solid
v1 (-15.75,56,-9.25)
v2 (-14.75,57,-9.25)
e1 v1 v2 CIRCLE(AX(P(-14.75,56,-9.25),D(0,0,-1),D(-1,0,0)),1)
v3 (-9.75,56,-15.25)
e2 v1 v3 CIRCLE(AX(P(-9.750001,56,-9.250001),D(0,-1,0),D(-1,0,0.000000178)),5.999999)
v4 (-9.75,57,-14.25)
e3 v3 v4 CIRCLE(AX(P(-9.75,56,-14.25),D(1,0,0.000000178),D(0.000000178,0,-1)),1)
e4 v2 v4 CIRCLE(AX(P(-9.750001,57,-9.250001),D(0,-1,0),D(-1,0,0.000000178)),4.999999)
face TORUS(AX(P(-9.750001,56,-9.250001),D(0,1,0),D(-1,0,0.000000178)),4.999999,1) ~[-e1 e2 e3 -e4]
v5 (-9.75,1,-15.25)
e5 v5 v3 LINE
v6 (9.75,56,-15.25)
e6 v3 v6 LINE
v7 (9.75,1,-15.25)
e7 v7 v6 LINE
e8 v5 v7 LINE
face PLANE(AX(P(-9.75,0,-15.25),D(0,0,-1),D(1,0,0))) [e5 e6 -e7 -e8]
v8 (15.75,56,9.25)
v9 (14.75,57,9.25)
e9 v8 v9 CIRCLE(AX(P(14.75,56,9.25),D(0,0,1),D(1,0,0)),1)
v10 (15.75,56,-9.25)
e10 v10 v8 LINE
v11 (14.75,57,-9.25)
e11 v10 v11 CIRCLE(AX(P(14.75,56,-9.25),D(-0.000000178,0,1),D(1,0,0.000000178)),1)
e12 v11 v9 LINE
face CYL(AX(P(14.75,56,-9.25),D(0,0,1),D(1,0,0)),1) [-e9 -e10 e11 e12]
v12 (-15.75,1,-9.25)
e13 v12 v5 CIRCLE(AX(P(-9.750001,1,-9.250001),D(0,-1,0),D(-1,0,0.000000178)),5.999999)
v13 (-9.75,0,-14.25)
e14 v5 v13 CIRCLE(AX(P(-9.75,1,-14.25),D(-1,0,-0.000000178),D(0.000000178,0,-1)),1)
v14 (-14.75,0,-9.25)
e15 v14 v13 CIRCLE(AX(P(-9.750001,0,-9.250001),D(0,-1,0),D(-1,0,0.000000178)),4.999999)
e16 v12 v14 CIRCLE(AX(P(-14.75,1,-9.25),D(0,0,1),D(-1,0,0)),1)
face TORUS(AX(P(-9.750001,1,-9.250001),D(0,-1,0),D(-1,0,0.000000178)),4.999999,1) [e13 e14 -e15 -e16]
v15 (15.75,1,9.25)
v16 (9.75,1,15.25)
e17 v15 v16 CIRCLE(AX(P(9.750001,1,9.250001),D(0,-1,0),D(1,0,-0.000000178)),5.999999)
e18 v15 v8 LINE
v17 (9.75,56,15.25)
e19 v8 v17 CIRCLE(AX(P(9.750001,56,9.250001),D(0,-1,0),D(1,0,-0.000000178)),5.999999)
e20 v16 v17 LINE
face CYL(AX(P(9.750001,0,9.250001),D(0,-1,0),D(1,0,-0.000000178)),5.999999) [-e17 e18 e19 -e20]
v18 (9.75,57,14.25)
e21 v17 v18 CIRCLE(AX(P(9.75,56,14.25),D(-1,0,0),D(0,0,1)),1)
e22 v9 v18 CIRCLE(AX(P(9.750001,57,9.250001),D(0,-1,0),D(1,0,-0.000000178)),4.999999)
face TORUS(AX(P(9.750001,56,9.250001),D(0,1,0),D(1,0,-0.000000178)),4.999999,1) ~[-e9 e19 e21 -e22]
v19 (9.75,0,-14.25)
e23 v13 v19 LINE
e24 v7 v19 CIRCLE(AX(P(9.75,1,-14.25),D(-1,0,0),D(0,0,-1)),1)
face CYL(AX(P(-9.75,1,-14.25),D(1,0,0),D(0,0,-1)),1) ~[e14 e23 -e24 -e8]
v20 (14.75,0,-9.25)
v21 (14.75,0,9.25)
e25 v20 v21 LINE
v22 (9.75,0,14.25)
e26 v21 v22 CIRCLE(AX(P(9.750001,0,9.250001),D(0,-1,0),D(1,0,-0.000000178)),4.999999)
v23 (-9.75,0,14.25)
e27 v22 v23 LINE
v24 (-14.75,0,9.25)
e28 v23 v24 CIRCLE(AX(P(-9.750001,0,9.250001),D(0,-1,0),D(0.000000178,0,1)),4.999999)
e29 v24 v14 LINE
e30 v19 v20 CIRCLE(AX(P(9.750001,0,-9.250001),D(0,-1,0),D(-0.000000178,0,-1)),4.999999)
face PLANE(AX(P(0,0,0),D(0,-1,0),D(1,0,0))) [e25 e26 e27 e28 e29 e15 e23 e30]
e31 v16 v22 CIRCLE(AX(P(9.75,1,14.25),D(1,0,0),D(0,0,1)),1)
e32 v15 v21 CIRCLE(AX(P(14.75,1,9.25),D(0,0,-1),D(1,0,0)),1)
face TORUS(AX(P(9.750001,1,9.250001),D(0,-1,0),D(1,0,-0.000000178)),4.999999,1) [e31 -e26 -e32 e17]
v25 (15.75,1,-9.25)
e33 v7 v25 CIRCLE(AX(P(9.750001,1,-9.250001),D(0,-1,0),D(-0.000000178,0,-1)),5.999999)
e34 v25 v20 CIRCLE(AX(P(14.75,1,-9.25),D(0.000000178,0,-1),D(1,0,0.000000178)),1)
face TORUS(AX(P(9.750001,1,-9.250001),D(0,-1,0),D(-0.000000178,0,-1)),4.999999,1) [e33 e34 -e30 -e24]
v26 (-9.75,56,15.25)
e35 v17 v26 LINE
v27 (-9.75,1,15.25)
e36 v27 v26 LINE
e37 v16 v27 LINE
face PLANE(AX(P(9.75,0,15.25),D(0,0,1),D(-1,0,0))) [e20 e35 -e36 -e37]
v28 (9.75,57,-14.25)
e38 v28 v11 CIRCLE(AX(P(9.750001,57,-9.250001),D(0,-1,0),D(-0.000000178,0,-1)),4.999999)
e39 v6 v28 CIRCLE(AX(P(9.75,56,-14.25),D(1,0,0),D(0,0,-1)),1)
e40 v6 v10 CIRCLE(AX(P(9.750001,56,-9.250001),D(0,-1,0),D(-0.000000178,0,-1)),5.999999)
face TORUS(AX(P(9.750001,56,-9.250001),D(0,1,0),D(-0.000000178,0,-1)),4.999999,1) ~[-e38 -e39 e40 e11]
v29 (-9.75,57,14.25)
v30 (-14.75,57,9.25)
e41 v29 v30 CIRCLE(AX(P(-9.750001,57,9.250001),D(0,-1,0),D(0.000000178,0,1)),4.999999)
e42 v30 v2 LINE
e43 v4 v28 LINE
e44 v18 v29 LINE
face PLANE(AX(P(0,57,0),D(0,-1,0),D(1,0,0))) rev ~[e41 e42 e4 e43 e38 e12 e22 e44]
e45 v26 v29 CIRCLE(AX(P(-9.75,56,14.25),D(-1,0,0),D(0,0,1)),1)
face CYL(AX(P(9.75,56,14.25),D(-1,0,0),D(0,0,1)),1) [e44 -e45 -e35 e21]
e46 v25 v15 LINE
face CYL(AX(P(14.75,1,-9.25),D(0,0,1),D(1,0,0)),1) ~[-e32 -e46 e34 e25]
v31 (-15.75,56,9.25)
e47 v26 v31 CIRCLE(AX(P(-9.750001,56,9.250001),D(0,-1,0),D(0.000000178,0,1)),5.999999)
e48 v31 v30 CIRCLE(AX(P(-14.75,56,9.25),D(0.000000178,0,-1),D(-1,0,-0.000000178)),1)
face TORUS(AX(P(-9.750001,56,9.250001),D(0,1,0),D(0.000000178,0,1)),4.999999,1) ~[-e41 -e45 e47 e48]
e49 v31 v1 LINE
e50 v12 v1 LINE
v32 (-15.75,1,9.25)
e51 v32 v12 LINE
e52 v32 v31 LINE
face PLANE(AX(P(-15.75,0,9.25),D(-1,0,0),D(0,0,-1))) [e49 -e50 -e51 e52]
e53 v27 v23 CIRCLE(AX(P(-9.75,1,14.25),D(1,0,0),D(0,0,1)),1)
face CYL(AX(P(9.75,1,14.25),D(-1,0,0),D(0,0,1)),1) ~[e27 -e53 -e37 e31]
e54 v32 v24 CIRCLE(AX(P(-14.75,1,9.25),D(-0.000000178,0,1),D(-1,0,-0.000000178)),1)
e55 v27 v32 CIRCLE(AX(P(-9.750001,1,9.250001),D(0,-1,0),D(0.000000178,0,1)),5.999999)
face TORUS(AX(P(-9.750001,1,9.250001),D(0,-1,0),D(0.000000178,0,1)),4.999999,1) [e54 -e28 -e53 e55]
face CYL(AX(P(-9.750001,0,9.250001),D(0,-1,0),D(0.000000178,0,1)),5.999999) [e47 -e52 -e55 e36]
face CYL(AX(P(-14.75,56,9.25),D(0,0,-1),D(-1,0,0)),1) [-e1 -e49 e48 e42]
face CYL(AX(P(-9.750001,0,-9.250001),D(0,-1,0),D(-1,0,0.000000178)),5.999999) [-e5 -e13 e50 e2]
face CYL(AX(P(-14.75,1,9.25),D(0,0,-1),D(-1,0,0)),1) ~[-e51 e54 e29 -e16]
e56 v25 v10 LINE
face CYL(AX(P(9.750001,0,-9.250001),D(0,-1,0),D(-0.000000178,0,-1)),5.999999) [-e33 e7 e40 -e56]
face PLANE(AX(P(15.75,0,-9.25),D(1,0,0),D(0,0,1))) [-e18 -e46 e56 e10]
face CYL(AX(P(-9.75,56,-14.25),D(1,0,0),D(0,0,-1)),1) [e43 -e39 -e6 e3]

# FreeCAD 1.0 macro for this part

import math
import FreeCAD as App
import Part
import Sketcher
from FreeCAD import Vector


def edges_at(feature, points):
    """Names of the edges that pass closest to the given points."""
    edges = feature.Shape.Edges
    near = lambda p: min(range(len(edges)), key=lambda i: edges[i].distToShape(Part.Vertex(*p))[0])
    return sorted({f"Edge{near(p) + 1}" for p in points})

doc = App.newDocument("Part")
params = doc.addObject("Spreadsheet::Sheet", "Params")
for row, (alias, value) in enumerate([
    ("sketch1_radius", "5.999999 mm"),
    ("sketch1_width", "19.5 mm"),
    ("sketch1_height", "18.5 mm"),
    ("pad1_length", "57 mm"),
    ("fillet_radius", "1 mm"),
], start=1):
    params.set(f"A{row}", alias)
    params.set(f"B{row}", "=" + value)
    params.setAlias(f"B{row}", alias)

body = doc.addObject("PartDesign::Body", "Body")

sketch1 = doc.addObject("Sketcher::SketchObject", "Sketch")
body.addObject(sketch1)
sketch1.AttachmentSupport = (doc.XZ_Plane, [""])
sketch1.MapMode = "FlatFace"
sketch1.addGeometry([
    Part.LineSegment(Vector(-16, 9, 0), Vector(-16, -9, 0)),
    Part.ArcOfCircle(Part.Circle(Vector(-10, -9, 0), Vector(0, 0, 1), 6), math.radians(180), math.radians(270)),
    Part.LineSegment(Vector(-10, -15, 0), Vector(10, -15, 0)),
    Part.ArcOfCircle(Part.Circle(Vector(10, -9, 0), Vector(0, 0, 1), 6), math.radians(-90), math.radians(0)),
    Part.LineSegment(Vector(16, -9, 0), Vector(16, 9, 0)),
    Part.ArcOfCircle(Part.Circle(Vector(10, 9, 0), Vector(0, 0, 1), 6), math.radians(0), math.radians(90)),
    Part.LineSegment(Vector(10, 15, 0), Vector(-10, 15, 0)),
    Part.ArcOfCircle(Part.Circle(Vector(-10, 9, 0), Vector(0, 0, 1), 6), math.radians(90), math.radians(180)),
], False)
sketch1.addConstraint([
    Sketcher.Constraint("Tangent", 0, 2, 1, 1),
    Sketcher.Constraint("Tangent", 1, 2, 2, 1),
    Sketcher.Constraint("Tangent", 2, 2, 3, 1),
    Sketcher.Constraint("Tangent", 3, 2, 4, 1),
    Sketcher.Constraint("Tangent", 4, 2, 5, 1),
    Sketcher.Constraint("Tangent", 5, 2, 6, 1),
    Sketcher.Constraint("Tangent", 6, 2, 7, 1),
    Sketcher.Constraint("Tangent", 7, 2, 0, 1),
    Sketcher.Constraint("Vertical", 0),
    Sketcher.Constraint("Horizontal", 2),
    Sketcher.Constraint("Vertical", 4),
    Sketcher.Constraint("Horizontal", 6),
    Sketcher.Constraint("Equal", 1, 3),
    Sketcher.Constraint("Equal", 3, 5),
    Sketcher.Constraint("Equal", 5, 7),
    Sketcher.Constraint("Symmetric", 1, 3, 5, 3, -1, 1),
    Sketcher.Constraint("Radius", 1, 5.999999),
    Sketcher.Constraint("DistanceX", 2, 1, 2, 2, 19.5),
    Sketcher.Constraint("DistanceY", 0, 2, 0, 1, 18.5),
])
sketch1.setExpression("Constraints[16]", "Params.sketch1_radius")
sketch1.setExpression("Constraints[17]", "Params.sketch1_width")
sketch1.setExpression("Constraints[18]", "Params.sketch1_height")
pad1 = doc.addObject("PartDesign::Pad", "Pad")
body.addObject(pad1)
pad1.Profile = sketch1
pad1.setExpression("Length", "Params.pad1_length")
pad1.Reversed = True
doc.recompute()

fillet = doc.addObject("PartDesign::Fillet", "Fillet")
body.addObject(fillet)
fillet.Base = (pad1, edges_at(pad1, [(0, 0, 15.25), (0, 57, 15.25)]))
fillet.setExpression("Radius", "Params.fillet_radius")

doc.recompute()
